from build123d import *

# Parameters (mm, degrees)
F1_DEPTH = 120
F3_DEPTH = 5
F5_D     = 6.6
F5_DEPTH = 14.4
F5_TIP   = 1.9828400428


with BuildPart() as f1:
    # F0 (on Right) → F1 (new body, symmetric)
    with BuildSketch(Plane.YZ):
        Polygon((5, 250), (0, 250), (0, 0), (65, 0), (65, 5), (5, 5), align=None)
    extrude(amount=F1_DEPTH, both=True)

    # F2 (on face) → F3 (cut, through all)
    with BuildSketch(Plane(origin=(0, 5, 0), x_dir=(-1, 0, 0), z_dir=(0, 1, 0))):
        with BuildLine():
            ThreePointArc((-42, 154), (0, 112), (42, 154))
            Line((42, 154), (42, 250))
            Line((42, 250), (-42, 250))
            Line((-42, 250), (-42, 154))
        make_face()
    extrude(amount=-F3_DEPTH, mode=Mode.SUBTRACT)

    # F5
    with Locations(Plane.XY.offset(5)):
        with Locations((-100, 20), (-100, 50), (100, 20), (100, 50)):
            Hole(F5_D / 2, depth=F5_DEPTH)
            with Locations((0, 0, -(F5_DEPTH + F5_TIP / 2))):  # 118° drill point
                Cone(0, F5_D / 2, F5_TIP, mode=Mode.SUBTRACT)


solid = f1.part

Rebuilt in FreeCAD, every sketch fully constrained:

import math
import FreeCAD as App
import Part
import Sketcher

V = App.Vector

doc = App.newDocument("Part")
body = doc.addObject("PartDesign::Body", "Body")

# Sketch on YZ plane
sketch1 = doc.addObject("Sketcher::SketchObject", "Sketch")
body.addObject(sketch1)
sketch1.AttachmentSupport = (doc.YZ_Plane, [""])
sketch1.MapMode = "FlatFace"
sketch1.addGeometry(Part.LineSegment(V(5, 250, 0), V(0, 250, 0)), False)
sketch1.addGeometry(Part.LineSegment(V(0, 250, 0), V(0, 0, 0)), False)
sketch1.addGeometry(Part.LineSegment(V(0, 0, 0), V(65, 0, 0)), False)
sketch1.addGeometry(Part.LineSegment(V(65, 0, 0), V(65, 5, 0)), False)
sketch1.addGeometry(Part.LineSegment(V(65, 5, 0), V(5, 5, 0)), False)
sketch1.addGeometry(Part.LineSegment(V(5, 5, 0), V(5, 250, 0)), False)
sketch1.addConstraint(Sketcher.Constraint("Coincident", 0, 2, 1, 1))
sketch1.addConstraint(Sketcher.Constraint("Coincident", 1, 2, 2, 1))
sketch1.addConstraint(Sketcher.Constraint("Coincident", 2, 2, 3, 1))
sketch1.addConstraint(Sketcher.Constraint("Coincident", 3, 2, 4, 1))
sketch1.addConstraint(Sketcher.Constraint("Coincident", 4, 2, 5, 1))
sketch1.addConstraint(Sketcher.Constraint("Coincident", 5, 2, 0, 1))
sketch1.addConstraint(Sketcher.Constraint("Horizontal", 0))
sketch1.addConstraint(Sketcher.Constraint("Vertical", 1))
sketch1.addConstraint(Sketcher.Constraint("Horizontal", 2))
sketch1.addConstraint(Sketcher.Constraint("Vertical", 3))
sketch1.addConstraint(Sketcher.Constraint("Horizontal", 4))
sketch1.addConstraint(Sketcher.Constraint("Vertical", 5))
sketch1.addConstraint(Sketcher.Constraint("Coincident", 1, 2, -1, 1))
sketch1.addConstraint(Sketcher.Constraint("Equal", 0, 3))
sketch1.addConstraint(Sketcher.Constraint("DistanceX", 0, 2, 0, 1, 5.0))
sketch1.addConstraint(Sketcher.Constraint("DistanceX", 2, 1, 2, 2, 65.0))
sketch1.addConstraint(Sketcher.Constraint("DistanceY", 1, 2, 1, 1, 250.0))
pad1 = doc.addObject("PartDesign::Pad", "Pad")
body.addObject(pad1)
pad1.Profile = sketch1
pad1.Length = 240
pad1.Midplane = True

# Sketch on XZ plane
sketch2 = doc.addObject("Sketcher::SketchObject", "Sketch001")
body.addObject(sketch2)
sketch2.AttachmentSupport = (doc.XZ_Plane, [""])
sketch2.MapMode = "FlatFace"
sketch2.AttachmentOffset = App.Placement(V(0, 0, -5), App.Rotation())
sketch2.addGeometry(Part.ArcOfCircle(Part.Circle(V(0, 154, 0), V(0, 0, 1), 42), math.radians(180), math.radians(360)), False)
sketch2.addGeometry(Part.LineSegment(V(-42, 154, 0), V(-42, 250, 0)), False)
sketch2.addGeometry(Part.LineSegment(V(-42, 250, 0), V(42, 250, 0)), False)
sketch2.addGeometry(Part.LineSegment(V(42, 250, 0), V(42, 154, 0)), False)
sketch2.addConstraint(Sketcher.Constraint("Tangent", 0, 1, 1, 1))
sketch2.addConstraint(Sketcher.Constraint("Coincident", 1, 2, 2, 1))
sketch2.addConstraint(Sketcher.Constraint("Coincident", 2, 2, 3, 1))
sketch2.addConstraint(Sketcher.Constraint("Tangent", 3, 2, 0, 2))
sketch2.addConstraint(Sketcher.Constraint("Vertical", 1))
sketch2.addConstraint(Sketcher.Constraint("Horizontal", 2))
sketch2.addConstraint(Sketcher.Constraint("Vertical", 3))
sketch2.addConstraint(Sketcher.Constraint("PointOnObject", 0, 3, -2))
sketch2.addConstraint(Sketcher.Constraint("Radius", 0, 42.0))
sketch2.addConstraint(Sketcher.Constraint("DistanceY", 1, 1, 1, 2, 96.0))
sketch2.addConstraint(Sketcher.Constraint("DistanceY", -1, 1, 0, 3, 154.0))
pocket1 = doc.addObject("PartDesign::Pocket", "Pocket")
body.addObject(pocket1)
pocket1.Profile = sketch2
pocket1.Type = "ThroughAll"
pocket1.Reversed = True

# Sketch on XY plane
sketch3 = doc.addObject("Sketcher::SketchObject", "Sketch002")
body.addObject(sketch3)
sketch3.AttachmentSupport = (doc.XY_Plane, [""])
sketch3.MapMode = "FlatFace"
sketch3.AttachmentOffset = App.Placement(V(0, 0, 5), App.Rotation())
sketch3.addGeometry(Part.Circle(V(-100, 20, 0), V(0, 0, 1), 3.3), False)
sketch3.addGeometry(Part.Circle(V(-100, 50, 0), V(0, 0, 1), 3.3), False)
sketch3.addGeometry(Part.Circle(V(100, 20, 0), V(0, 0, 1), 3.3), False)
sketch3.addGeometry(Part.Circle(V(100, 50, 0), V(0, 0, 1), 3.3), False)
sketch3.addConstraint(Sketcher.Constraint("Equal", 0, 1))
sketch3.addConstraint(Sketcher.Constraint("Equal", 1, 2))
sketch3.addConstraint(Sketcher.Constraint("Equal", 2, 3))
sketch3.addConstraint(Sketcher.Constraint("Symmetric", 0, 3, 2, 3, -2))
sketch3.addConstraint(Sketcher.Constraint("Symmetric", 1, 3, 3, 3, -2))
sketch3.addConstraint(Sketcher.Constraint("Vertical", 0, 3, 1, 3))
sketch3.addConstraint(Sketcher.Constraint("Diameter", 0, 6.6))
sketch3.addConstraint(Sketcher.Constraint("DistanceX", 0, 3, -1, 1, 100.0))
sketch3.addConstraint(Sketcher.Constraint("DistanceY", -1, 1, 0, 3, 20.0))
sketch3.addConstraint(Sketcher.Constraint("DistanceY", -1, 1, 1, 3, 50.0))
doc.recompute()
hole = doc.addObject("PartDesign::Hole", "Hole")
body.addObject(hole)
hole.Profile = sketch3
hole.ThreadType = "None"
hole.Diameter = 6.6
hole.DepthType = "Dimension"
hole.Depth = 14.4
hole.DrillPoint = "Angled"
hole.DrillPointAngle = 118

doc.recompute()
